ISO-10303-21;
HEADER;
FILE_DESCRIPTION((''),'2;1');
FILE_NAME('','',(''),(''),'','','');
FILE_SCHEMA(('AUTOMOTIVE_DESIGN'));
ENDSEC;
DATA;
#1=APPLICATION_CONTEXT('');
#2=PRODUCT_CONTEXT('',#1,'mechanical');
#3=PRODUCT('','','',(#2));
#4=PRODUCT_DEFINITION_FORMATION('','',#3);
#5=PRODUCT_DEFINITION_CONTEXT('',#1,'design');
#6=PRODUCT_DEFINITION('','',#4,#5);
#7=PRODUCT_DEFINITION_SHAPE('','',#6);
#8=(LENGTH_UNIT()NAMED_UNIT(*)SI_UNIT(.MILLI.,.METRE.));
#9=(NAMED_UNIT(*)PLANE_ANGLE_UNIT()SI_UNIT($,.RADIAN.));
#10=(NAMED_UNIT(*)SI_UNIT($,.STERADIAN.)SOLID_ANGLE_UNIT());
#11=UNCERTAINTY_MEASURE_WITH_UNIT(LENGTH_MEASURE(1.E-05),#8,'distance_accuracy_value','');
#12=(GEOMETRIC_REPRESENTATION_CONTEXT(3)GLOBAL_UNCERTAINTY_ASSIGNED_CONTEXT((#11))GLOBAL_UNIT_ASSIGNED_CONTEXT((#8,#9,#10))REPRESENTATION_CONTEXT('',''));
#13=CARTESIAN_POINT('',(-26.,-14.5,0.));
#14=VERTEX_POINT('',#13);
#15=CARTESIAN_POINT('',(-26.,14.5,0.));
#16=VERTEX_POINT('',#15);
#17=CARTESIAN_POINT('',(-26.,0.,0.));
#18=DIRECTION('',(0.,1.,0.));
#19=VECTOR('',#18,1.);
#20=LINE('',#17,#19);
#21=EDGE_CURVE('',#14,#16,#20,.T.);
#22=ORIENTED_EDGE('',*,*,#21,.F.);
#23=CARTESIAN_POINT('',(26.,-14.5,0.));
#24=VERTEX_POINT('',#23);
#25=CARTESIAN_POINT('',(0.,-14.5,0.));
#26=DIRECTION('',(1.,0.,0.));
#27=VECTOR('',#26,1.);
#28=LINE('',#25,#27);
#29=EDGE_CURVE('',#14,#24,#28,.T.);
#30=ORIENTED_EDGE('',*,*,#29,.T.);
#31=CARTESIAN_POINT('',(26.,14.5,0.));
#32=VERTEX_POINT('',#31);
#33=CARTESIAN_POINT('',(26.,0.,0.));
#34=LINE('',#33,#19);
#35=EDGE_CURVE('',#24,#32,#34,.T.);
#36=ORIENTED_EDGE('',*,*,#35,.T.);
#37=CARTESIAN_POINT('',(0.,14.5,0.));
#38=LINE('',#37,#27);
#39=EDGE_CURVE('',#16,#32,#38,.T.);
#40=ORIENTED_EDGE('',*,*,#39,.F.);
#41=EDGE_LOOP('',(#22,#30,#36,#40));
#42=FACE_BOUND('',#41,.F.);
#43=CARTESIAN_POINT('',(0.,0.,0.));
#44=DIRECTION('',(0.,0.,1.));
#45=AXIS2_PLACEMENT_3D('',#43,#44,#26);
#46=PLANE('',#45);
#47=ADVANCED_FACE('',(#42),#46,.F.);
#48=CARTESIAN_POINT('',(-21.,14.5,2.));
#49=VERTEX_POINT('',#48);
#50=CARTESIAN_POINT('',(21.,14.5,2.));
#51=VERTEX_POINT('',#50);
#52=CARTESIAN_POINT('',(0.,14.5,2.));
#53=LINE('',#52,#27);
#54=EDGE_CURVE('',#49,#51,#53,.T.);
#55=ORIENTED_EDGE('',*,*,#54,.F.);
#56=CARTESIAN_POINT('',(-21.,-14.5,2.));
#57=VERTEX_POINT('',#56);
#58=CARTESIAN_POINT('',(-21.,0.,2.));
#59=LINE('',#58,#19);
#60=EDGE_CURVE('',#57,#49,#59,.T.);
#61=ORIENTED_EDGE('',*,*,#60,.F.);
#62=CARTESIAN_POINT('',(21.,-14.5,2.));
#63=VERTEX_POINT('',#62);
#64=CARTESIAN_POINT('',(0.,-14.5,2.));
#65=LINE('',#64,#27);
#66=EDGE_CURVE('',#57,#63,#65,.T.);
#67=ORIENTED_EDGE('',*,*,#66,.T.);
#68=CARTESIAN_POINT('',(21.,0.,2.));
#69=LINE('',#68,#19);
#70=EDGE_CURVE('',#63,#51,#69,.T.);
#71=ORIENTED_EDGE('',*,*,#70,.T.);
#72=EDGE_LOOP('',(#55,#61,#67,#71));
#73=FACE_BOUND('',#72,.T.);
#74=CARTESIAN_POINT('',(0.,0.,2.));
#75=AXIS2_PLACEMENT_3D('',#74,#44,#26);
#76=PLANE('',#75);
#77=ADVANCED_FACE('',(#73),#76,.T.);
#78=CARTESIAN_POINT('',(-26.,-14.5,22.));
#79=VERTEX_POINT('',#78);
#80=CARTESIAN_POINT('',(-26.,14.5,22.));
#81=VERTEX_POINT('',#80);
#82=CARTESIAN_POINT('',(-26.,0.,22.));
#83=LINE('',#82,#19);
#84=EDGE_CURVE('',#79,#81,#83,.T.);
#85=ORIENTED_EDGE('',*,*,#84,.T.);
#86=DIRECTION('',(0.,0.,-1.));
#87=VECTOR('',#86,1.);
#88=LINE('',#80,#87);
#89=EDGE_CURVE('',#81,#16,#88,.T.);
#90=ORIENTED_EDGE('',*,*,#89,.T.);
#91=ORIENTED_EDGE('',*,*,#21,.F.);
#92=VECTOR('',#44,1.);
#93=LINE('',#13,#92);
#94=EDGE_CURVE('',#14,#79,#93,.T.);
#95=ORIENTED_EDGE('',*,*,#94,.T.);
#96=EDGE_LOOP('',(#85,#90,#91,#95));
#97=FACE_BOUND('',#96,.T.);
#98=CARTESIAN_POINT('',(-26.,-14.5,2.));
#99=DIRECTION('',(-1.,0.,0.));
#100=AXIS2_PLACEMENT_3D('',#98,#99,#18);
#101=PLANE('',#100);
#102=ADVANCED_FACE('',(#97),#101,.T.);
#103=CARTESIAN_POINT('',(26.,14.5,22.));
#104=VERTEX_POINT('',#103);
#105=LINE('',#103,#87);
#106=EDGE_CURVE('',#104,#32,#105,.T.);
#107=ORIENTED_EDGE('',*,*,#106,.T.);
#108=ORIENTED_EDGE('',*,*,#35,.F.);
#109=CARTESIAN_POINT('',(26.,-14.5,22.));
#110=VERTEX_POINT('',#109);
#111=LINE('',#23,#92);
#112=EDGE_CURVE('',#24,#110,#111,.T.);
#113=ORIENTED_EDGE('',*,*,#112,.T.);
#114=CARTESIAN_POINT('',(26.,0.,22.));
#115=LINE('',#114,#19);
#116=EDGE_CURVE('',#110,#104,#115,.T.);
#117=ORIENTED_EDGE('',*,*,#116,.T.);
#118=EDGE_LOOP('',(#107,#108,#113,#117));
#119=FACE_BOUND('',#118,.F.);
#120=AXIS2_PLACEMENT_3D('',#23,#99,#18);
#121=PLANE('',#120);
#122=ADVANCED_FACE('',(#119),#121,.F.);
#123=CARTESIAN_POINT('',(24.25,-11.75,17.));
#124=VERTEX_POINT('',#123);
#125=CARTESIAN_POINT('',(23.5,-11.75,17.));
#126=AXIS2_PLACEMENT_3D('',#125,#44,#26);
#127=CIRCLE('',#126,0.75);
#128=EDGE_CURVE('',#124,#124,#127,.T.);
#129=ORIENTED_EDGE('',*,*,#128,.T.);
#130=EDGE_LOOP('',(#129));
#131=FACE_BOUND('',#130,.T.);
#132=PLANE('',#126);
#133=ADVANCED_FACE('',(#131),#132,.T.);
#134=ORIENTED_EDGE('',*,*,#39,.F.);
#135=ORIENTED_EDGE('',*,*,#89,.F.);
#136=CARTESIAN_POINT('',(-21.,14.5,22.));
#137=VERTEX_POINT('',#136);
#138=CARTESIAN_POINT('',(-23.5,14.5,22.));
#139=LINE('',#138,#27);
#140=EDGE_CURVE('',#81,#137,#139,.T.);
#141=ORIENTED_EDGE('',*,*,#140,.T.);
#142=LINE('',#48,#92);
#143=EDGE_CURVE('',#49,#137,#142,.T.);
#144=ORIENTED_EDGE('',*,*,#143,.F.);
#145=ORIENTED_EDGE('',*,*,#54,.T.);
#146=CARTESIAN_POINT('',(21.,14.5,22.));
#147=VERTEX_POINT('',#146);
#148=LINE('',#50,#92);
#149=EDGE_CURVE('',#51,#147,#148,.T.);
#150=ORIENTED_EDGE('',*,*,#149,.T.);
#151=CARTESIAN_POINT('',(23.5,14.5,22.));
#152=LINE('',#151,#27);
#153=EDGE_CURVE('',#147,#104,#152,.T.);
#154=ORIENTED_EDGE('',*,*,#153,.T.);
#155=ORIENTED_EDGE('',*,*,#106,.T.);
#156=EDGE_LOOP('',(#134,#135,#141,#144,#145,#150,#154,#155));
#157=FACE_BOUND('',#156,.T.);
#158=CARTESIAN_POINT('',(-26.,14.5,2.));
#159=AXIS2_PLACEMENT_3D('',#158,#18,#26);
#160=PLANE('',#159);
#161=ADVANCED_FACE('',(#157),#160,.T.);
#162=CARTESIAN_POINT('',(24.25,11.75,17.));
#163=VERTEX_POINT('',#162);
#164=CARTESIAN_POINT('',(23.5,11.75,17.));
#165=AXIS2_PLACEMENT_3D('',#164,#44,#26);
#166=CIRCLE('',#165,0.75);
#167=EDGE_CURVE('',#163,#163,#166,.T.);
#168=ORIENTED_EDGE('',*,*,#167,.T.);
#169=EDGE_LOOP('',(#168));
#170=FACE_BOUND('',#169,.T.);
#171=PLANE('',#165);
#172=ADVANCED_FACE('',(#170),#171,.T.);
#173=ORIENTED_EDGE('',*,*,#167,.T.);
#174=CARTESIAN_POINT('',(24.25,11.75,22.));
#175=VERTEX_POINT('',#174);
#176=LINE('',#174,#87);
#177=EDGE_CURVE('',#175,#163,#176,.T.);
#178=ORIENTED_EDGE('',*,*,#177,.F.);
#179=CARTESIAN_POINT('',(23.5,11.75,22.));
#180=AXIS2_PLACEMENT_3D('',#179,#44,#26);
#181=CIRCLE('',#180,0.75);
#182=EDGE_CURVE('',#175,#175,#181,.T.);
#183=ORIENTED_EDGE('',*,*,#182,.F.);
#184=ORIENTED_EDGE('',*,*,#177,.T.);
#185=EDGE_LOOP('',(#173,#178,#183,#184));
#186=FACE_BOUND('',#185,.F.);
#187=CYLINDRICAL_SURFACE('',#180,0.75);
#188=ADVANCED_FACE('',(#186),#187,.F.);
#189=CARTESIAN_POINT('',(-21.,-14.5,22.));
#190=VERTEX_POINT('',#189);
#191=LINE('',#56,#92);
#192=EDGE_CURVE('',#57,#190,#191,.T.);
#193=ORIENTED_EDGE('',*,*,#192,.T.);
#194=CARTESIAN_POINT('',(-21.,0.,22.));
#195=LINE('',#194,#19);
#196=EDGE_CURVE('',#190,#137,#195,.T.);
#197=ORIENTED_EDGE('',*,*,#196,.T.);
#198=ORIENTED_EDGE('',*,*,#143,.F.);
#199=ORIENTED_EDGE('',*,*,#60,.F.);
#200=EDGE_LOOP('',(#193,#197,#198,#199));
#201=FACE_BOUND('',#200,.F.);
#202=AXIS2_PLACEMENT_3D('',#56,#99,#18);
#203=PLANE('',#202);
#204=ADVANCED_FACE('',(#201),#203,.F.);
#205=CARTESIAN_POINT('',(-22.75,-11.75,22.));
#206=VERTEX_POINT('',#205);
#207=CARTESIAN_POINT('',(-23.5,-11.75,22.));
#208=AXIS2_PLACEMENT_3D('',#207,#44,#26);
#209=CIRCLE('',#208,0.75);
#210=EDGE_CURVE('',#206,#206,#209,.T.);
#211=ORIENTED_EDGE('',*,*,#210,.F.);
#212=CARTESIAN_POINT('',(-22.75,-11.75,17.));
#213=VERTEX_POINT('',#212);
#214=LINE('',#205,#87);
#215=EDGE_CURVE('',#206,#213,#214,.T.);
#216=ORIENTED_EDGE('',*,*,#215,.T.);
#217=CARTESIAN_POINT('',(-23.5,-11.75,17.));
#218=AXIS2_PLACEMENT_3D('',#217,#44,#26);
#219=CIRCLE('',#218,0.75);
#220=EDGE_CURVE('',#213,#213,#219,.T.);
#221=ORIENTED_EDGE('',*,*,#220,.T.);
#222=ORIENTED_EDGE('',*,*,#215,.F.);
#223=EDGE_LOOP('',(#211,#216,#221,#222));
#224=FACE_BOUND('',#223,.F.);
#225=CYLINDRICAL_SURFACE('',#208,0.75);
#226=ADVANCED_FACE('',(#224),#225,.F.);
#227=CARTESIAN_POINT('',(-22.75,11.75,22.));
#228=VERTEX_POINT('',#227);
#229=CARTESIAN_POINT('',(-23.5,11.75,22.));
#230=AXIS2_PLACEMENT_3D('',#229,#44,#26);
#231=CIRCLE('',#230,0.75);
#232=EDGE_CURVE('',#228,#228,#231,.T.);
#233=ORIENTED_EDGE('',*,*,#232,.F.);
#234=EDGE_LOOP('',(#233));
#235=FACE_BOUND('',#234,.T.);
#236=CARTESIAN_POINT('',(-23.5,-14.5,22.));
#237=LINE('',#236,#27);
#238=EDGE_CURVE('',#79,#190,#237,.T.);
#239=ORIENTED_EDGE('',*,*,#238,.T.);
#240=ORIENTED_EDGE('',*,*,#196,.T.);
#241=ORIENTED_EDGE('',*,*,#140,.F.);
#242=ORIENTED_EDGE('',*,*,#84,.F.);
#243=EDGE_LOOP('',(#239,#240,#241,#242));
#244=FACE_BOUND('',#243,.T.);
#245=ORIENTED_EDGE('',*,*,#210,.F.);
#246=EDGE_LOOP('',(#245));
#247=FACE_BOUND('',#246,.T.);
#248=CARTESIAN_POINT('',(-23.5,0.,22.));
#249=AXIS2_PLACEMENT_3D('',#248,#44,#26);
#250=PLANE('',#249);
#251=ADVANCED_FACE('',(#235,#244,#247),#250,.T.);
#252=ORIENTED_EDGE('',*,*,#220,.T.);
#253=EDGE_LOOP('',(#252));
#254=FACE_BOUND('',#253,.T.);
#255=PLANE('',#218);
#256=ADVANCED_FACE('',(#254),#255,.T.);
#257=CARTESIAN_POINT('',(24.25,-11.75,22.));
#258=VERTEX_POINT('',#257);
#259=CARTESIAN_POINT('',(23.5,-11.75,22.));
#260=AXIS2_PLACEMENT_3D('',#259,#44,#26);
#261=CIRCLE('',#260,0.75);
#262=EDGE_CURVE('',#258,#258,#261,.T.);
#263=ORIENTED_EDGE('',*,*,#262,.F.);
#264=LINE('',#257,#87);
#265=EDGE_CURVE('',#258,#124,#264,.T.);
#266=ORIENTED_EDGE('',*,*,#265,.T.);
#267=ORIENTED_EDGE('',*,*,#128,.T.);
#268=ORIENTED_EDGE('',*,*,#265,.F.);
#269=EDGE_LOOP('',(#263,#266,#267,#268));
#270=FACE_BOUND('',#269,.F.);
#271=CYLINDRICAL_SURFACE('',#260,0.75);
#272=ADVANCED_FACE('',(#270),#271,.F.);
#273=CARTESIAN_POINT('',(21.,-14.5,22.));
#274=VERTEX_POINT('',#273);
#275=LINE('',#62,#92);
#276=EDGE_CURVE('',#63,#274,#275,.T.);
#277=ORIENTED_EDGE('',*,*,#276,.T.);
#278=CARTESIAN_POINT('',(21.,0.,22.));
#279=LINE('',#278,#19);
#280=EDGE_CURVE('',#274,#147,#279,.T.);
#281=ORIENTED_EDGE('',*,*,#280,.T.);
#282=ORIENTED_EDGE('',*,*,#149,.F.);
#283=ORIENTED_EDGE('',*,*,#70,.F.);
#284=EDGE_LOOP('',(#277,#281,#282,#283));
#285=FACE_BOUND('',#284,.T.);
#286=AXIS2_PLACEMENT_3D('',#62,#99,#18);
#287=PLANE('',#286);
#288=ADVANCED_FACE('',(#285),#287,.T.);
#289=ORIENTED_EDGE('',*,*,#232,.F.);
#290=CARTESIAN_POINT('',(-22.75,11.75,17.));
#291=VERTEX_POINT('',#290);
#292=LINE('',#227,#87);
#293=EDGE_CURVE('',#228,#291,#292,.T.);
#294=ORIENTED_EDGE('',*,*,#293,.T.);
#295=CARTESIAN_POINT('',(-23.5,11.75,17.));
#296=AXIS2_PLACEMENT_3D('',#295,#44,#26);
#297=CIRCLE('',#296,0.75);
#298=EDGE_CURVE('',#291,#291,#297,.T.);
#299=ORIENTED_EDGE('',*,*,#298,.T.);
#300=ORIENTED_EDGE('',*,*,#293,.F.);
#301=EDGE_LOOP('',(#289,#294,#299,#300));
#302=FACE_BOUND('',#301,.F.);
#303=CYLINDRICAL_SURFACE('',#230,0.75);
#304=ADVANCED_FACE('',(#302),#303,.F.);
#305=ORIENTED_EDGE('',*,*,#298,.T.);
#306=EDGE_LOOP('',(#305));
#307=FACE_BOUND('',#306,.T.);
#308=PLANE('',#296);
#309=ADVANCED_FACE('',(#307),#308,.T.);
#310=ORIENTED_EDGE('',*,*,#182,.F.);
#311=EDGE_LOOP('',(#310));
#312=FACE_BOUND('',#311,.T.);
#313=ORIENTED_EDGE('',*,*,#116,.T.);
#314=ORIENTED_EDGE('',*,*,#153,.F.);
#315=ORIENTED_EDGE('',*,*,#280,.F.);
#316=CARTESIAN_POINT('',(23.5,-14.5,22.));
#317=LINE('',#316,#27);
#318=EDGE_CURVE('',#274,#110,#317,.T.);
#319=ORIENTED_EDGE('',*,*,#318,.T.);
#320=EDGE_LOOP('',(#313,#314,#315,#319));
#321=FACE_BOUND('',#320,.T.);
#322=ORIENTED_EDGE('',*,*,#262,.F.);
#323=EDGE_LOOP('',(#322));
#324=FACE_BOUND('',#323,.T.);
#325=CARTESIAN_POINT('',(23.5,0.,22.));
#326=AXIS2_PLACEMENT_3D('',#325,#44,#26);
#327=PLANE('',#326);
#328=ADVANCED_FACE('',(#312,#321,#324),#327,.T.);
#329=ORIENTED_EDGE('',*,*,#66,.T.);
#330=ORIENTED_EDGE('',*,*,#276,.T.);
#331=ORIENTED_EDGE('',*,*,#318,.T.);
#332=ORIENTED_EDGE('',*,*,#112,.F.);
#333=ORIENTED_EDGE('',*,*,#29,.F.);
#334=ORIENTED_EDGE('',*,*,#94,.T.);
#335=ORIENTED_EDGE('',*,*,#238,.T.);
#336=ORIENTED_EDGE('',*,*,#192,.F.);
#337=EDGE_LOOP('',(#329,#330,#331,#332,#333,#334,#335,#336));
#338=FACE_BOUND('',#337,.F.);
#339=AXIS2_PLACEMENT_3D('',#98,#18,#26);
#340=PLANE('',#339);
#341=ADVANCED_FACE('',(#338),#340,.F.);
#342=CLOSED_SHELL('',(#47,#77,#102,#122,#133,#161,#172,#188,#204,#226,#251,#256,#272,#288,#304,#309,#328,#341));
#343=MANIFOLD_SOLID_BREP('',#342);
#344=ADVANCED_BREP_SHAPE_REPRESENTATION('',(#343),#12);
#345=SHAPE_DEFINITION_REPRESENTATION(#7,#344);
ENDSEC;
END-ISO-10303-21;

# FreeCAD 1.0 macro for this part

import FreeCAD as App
import Part
import Sketcher
Q = App.Units.Quantity


def add_polygon(sketch, points):
    """Adds a closed chain of lines whose ends are joined by coincident constraints."""
    first, n = sketch.GeometryCount, len(points)
    for a, b in zip(points, points[1:] + points[:1]):
        sketch.addGeometry(Part.LineSegment(App.Vector(*a, 0), App.Vector(*b, 0)), False)
    for i in range(n):
        sketch.addConstraint(Sketcher.Constraint("Coincident", first + i, 2, first + (i + 1) % n, 1))

doc = App.newDocument("Part")
body = doc.addObject("PartDesign::Body", "Body")

# Sketch on XY plane
sketch1 = body.newObject("Sketcher::SketchObject", "Sketch")
sketch1.AttachmentSupport = (doc.getObject("XY_Plane"), [""])
sketch1.MapMode = "FlatFace"
add_polygon(sketch1, [(-26, 14), (-26, -14), (26, -14), (26, 14)])  # lines 0-3
sketch1.addConstraint([
    Sketcher.Constraint("Vertical", 0),
    Sketcher.Constraint("Horizontal", 1),
    Sketcher.Constraint("Vertical", 2),
    Sketcher.Constraint("Horizontal", 3),
    Sketcher.Constraint("Symmetric", 0, 2, 2, 2, -1, 1),
    Sketcher.Constraint("DistanceX", 1, 1, 1, 2, Q("52 mm")),
    Sketcher.Constraint("DistanceY", 0, 2, 0, 1, Q("29 mm")),
])
pad1 = body.newObject("PartDesign::Pad", "Pad")
pad1.Profile = sketch1
pad1.Length = 2

# Sketch on XY plane
sketch2 = body.newObject("Sketcher::SketchObject", "Sketch001")
sketch2.AttachmentSupport = (doc.getObject("XY_Plane"), [""])
sketch2.MapMode = "FlatFace"
sketch2.AttachmentOffset = App.Placement(App.Vector(0, 0, 2), App.Rotation())
add_polygon(sketch2, [(-26, 14), (-26, -14), (-21, -14), (-21, 14)])  # lines 0-3
add_polygon(sketch2, [(21, 14), (21, -14), (26, -14), (26, 14)])  # lines 4-7
sketch2.addConstraint([
    Sketcher.Constraint("Vertical", 0),
    Sketcher.Constraint("Horizontal", 1),
    Sketcher.Constraint("Vertical", 2),
    Sketcher.Constraint("Horizontal", 3),
    Sketcher.Constraint("Vertical", 4),
    Sketcher.Constraint("Horizontal", 5),
    Sketcher.Constraint("Vertical", 6),
    Sketcher.Constraint("Horizontal", 7),
    Sketcher.Constraint("Symmetric", 2, 2, 4, 2, -1, 1),
    Sketcher.Constraint("Symmetric", 0, 2, 6, 2, -1, 1),
    Sketcher.Constraint("Horizontal", 1, 2, 4, 2),
    Sketcher.Constraint("DistanceX", 1, 1, 1, 2, Q("5 mm")),
    Sketcher.Constraint("DistanceY", 0, 2, 0, 1, Q("29 mm")),
    Sketcher.Constraint("DistanceX", 0, 2, -1, 1, Q("26 mm")),
])
pad2 = body.newObject("PartDesign::Pad", "Pad001")
pad2.Profile = sketch2
pad2.Length = 20

# Sketch on XY plane
sketch3 = body.newObject("Sketcher::SketchObject", "Sketch002")
sketch3.AttachmentSupport = (doc.getObject("XY_Plane"), [""])
sketch3.MapMode = "FlatFace"
sketch3.AttachmentOffset = App.Placement(App.Vector(0, 0, 22), App.Rotation())
sketch3.addGeometry([
    Part.Circle(App.Vector(-23.5, 11.8, 0), App.Vector(0, 0, 1), 0.8),
    Part.Circle(App.Vector(-23.5, -11.8, 0), App.Vector(0, 0, 1), 0.8),
    Part.Circle(App.Vector(23.5, 11.8, 0), App.Vector(0, 0, 1), 0.8),
    Part.Circle(App.Vector(23.5, -11.8, 0), App.Vector(0, 0, 1), 0.8),
], False)
sketch3.addConstraint([
    Sketcher.Constraint("Equal", 0, 1),
    Sketcher.Constraint("Equal", 1, 2),
    Sketcher.Constraint("Equal", 2, 3),
    Sketcher.Constraint("Symmetric", 1, 3, 2, 3, -1, 1),
    Sketcher.Constraint("Symmetric", 0, 3, 3, 3, -1, 1),
    Sketcher.Constraint("Symmetric", 0, 3, 2, 3, -2),
    Sketcher.Constraint("Diameter", 0, Q("1.5 mm")),
    Sketcher.Constraint("DistanceX", 0, 3, 2, 3, Q("47 mm")),
    Sketcher.Constraint("DistanceY", 1, 3, 0, 3, Q("23.5 mm")),
])
pocket1 = body.newObject("PartDesign::Pocket", "Pocket")
pocket1.Profile = sketch3
pocket1.Length = 5

doc.recompute()
